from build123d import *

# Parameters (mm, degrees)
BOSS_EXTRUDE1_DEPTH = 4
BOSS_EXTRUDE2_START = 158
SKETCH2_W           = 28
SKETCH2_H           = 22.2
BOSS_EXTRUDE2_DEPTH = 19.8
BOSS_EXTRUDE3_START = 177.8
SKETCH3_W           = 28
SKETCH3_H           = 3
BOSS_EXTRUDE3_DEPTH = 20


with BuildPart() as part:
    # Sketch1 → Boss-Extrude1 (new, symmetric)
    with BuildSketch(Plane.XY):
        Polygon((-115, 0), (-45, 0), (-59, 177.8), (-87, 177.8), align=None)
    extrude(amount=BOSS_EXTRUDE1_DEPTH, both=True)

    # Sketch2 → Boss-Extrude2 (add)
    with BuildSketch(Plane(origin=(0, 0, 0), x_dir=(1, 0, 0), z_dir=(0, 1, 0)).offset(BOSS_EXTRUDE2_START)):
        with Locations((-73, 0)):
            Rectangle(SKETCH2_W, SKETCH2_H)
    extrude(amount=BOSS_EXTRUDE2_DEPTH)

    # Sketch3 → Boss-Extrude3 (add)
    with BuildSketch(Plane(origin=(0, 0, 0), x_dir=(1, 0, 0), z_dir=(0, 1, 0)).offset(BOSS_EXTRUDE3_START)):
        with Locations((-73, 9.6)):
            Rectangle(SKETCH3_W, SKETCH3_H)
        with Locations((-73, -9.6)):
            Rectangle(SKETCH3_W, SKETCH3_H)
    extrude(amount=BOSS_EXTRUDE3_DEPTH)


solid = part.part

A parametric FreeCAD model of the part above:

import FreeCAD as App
import Part
import Sketcher

doc = App.newDocument("Part")
body = doc.addObject("PartDesign::Body", "Body")

# Sketch on XY plane
sketch1 = body.newObject("Sketcher::SketchObject", "Sketch")
sketch1.AttachmentSupport = (doc.getObject("XY_Plane"), [""])
sketch1.MapMode = "FlatFace"
sketch1.addGeometry([
    Part.LineSegment(App.Vector(-115, 0, 0), App.Vector(-45, 0, 0)),
    Part.LineSegment(App.Vector(-45, 0, 0), App.Vector(-59, 177.8, 0)),
    Part.LineSegment(App.Vector(-59, 177.8, 0), App.Vector(-87, 177.8, 0)),
    Part.LineSegment(App.Vector(-87, 177.8, 0), App.Vector(-115, 0, 0)),
], False)
sketch1.addConstraint([
    Sketcher.Constraint("Coincident", 0, 2, 1, 1),
    Sketcher.Constraint("Coincident", 1, 2, 2, 1),
    Sketcher.Constraint("Coincident", 2, 2, 3, 1),
    Sketcher.Constraint("Coincident", 3, 2, 0, 1),
    Sketcher.Constraint("Horizontal", 0),
    Sketcher.Constraint("Horizontal", 2),
    Sketcher.Constraint("PointOnObject", 0, 2, -1),
    Sketcher.Constraint("DistanceX", 0, 1, 0, 2, 70.0),
    Sketcher.Constraint("DistanceX", 2, 2, 2, 1, 28.0),
    Sketcher.Constraint("DistanceX", 0, 2, -1, 1, 45.0),
    Sketcher.Constraint("DistanceX", 1, 2, -1, 1, 59.0),
    Sketcher.Constraint("DistanceY", -1, 1, 1, 2, 177.8),
])
pad1 = body.newObject("PartDesign::Pad", "Pad")
pad1.Profile = sketch1
pad1.Length = 8
pad1.Midplane = True

# Sketch on XZ plane
sketch2 = body.newObject("Sketcher::SketchObject", "Sketch001")
sketch2.AttachmentSupport = (doc.getObject("XZ_Plane"), [""])
sketch2.MapMode = "FlatFace"
sketch2.AttachmentOffset = App.Placement(App.Vector(0, 0, -158), App.Rotation())
sketch2.addGeometry([
    Part.LineSegment(App.Vector(-87, -11.1, 0), App.Vector(-87, 11.1, 0)),
    Part.LineSegment(App.Vector(-87, 11.1, 0), App.Vector(-59, 11.1, 0)),
    Part.LineSegment(App.Vector(-59, 11.1, 0), App.Vector(-59, -11.1, 0)),
    Part.LineSegment(App.Vector(-59, -11.1, 0), App.Vector(-87, -11.1, 0)),
], False)
sketch2.addConstraint([
    Sketcher.Constraint("Coincident", 0, 2, 1, 1),
    Sketcher.Constraint("Coincident", 1, 2, 2, 1),
    Sketcher.Constraint("Coincident", 2, 2, 3, 1),
    Sketcher.Constraint("Coincident", 3, 2, 0, 1),
    Sketcher.Constraint("Vertical", 0),
    Sketcher.Constraint("Horizontal", 1),
    Sketcher.Constraint("Vertical", 2),
    Sketcher.Constraint("Horizontal", 3),
    Sketcher.Constraint("DistanceX", 1, 1, 1, 2, 28.0),
    Sketcher.Constraint("DistanceY", 0, 1, 0, 2, 22.2),
    Sketcher.Constraint("DistanceX", 0, 2, -1, 1, 87.0),
    Sketcher.Constraint("DistanceY", -1, 1, 0, 2, 11.1),
])
pad2 = body.newObject("PartDesign::Pad", "Pad001")
pad2.Profile = sketch2
pad2.Length = 19.8
pad2.Reversed = True

# Sketch on XZ plane
sketch3 = body.newObject("Sketcher::SketchObject", "Sketch002")
sketch3.AttachmentSupport = (doc.getObject("XZ_Plane"), [""])
sketch3.MapMode = "FlatFace"
sketch3.AttachmentOffset = App.Placement(App.Vector(0, 0, -177.8), App.Rotation())
sketch3.addGeometry([
    Part.LineSegment(App.Vector(-87, -11.1, 0), App.Vector(-87, -8.1, 0)),  # 0
    Part.LineSegment(App.Vector(-87, -8.1, 0), App.Vector(-59, -8.1, 0)),  # 1
    Part.LineSegment(App.Vector(-59, -8.1, 0), App.Vector(-59, -11.1, 0)),  # 2
    Part.LineSegment(App.Vector(-59, -11.1, 0), App.Vector(-87, -11.1, 0)),  # 3
    Part.LineSegment(App.Vector(-87, 8.1, 0), App.Vector(-87, 11.1, 0)),  # 4
    Part.LineSegment(App.Vector(-87, 11.1, 0), App.Vector(-59, 11.1, 0)),  # 5
    Part.LineSegment(App.Vector(-59, 11.1, 0), App.Vector(-59, 8.1, 0)),  # 6
    Part.LineSegment(App.Vector(-59, 8.1, 0), App.Vector(-87, 8.1, 0)),  # 7
], False)
sketch3.addConstraint([
    Sketcher.Constraint("Coincident", 0, 2, 1, 1),
    Sketcher.Constraint("Coincident", 1, 2, 2, 1),
    Sketcher.Constraint("Coincident", 2, 2, 3, 1),
    Sketcher.Constraint("Coincident", 3, 2, 0, 1),
    Sketcher.Constraint("Coincident", 4, 2, 5, 1),
    Sketcher.Constraint("Coincident", 5, 2, 6, 1),
    Sketcher.Constraint("Coincident", 6, 2, 7, 1),
    Sketcher.Constraint("Coincident", 7, 2, 4, 1),
    Sketcher.Constraint("Vertical", 0),
    Sketcher.Constraint("Horizontal", 1),
    Sketcher.Constraint("Vertical", 2),
    Sketcher.Constraint("Horizontal", 3),
    Sketcher.Constraint("Vertical", 4),
    Sketcher.Constraint("Horizontal", 5),
    Sketcher.Constraint("Vertical", 6),
    Sketcher.Constraint("Horizontal", 7),
    Sketcher.Constraint("Symmetric", 3, 2, 4, 2, -1),
    Sketcher.Constraint("Symmetric", 1, 2, 6, 2, -1),
    Sketcher.Constraint("DistanceX", 1, 1, 1, 2, 28.0),
    Sketcher.Constraint("DistanceY", 0, 1, 0, 2, 3.0),
    Sketcher.Constraint("DistanceX", 0, 2, -1, 1, 87.0),
    Sketcher.Constraint("DistanceY", 0, 2, -1, 1, 8.1),
])
pad3 = body.newObject("PartDesign::Pad", "Pad002")
pad3.Profile = sketch3
pad3.Length = 20
pad3.Reversed = True

doc.recompute()
